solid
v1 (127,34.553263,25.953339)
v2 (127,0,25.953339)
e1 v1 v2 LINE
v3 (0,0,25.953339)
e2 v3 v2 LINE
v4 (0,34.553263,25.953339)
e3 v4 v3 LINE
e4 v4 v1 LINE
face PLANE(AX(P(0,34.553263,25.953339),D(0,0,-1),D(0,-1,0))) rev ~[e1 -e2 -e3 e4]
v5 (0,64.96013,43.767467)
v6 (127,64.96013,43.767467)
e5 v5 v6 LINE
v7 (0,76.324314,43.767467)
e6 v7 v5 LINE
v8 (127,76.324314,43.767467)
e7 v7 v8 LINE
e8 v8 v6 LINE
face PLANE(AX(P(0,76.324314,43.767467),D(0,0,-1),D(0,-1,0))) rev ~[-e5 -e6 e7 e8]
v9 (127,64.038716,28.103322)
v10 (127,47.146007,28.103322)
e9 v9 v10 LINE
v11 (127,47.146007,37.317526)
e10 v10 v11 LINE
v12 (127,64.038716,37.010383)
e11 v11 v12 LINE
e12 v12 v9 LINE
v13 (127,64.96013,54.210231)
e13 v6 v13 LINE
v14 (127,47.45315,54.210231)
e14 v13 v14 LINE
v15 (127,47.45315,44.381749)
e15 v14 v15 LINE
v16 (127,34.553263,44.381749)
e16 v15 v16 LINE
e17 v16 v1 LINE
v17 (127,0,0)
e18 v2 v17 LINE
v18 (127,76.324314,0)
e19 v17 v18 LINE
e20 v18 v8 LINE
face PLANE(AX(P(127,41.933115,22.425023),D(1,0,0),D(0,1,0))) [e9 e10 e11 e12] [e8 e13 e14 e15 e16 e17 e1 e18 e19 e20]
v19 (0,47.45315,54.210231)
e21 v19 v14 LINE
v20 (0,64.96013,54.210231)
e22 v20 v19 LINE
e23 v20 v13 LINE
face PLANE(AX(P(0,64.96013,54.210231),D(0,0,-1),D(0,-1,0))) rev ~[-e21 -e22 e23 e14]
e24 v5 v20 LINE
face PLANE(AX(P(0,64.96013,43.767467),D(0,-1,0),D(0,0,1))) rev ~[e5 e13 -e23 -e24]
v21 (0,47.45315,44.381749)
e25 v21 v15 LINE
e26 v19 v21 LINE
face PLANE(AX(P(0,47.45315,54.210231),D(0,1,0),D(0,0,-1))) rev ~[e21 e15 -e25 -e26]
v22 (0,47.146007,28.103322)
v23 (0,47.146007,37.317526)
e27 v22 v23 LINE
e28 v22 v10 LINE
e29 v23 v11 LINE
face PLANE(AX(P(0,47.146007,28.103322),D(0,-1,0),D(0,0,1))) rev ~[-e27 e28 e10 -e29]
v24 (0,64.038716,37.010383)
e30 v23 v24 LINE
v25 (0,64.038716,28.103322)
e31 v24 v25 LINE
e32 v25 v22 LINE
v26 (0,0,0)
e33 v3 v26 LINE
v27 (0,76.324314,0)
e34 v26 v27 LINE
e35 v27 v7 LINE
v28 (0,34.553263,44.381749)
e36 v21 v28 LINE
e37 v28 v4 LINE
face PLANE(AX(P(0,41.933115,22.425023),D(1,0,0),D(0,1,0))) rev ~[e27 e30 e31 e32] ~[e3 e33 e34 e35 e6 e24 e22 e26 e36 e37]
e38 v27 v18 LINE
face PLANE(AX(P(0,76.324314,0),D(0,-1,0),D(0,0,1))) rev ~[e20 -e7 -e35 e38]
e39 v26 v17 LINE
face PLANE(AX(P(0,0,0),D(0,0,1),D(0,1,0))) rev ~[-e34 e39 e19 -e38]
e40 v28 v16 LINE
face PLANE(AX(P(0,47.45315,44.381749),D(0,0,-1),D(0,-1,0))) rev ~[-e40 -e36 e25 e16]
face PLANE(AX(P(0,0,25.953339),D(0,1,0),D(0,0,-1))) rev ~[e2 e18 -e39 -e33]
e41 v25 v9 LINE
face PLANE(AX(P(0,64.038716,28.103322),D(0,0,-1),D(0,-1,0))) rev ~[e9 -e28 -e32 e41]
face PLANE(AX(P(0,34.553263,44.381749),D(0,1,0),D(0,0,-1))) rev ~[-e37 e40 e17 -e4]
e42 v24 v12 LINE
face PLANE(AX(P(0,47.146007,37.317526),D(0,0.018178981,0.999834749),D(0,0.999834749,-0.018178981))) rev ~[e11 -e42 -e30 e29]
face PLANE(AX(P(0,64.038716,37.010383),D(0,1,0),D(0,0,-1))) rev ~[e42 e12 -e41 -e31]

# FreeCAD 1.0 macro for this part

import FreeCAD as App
import Part
import Sketcher

V = App.Vector
Q = App.Units.Quantity


def add_polygon(sketch, points):
    """Adds a closed chain of lines whose ends are joined by coincident constraints."""
    first, n = sketch.GeometryCount, len(points)
    for a, b in zip(points, points[1:] + points[:1]):
        sketch.addGeometry(Part.LineSegment(App.Vector(*a, 0), App.Vector(*b, 0)), False)
    for i in range(n):
        sketch.addConstraint(Sketcher.Constraint("Coincident", first + i, 2, first + (i + 1) % n, 1))

doc = App.newDocument("Part")
body = doc.addObject("PartDesign::Body", "Body")

sketch1 = body.newObject("Sketcher::SketchObject", "Sketch")
sketch1.AttachmentSupport = (doc.getObject("YZ_Plane"), [""])
sketch1.MapMode = "FlatFace"
add_polygon(sketch1, [(0, 25.953339), (0, 0), (76.324314, 0), (76.324314, 43.767467), (64.96013, 43.767467), (64.96013, 54.210231), (47.45315, 54.210231), (47.45315, 44.381749), (34.553263, 44.381749), (34.553263, 25.953339)])
add_polygon(sketch1, [(64.038716, 28.103322), (47.146007, 28.103322), (47.146007, 37.317526), (64.038716, 37.010383)])
sketch1.addConstraint([
    Sketcher.Constraint("Vertical", 0),
    Sketcher.Constraint("Horizontal", 1),
    Sketcher.Constraint("Vertical", 2),
    Sketcher.Constraint("Horizontal", 3),
    Sketcher.Constraint("Vertical", 4),
    Sketcher.Constraint("Horizontal", 5),
    Sketcher.Constraint("Vertical", 6),
    Sketcher.Constraint("Horizontal", 7),
    Sketcher.Constraint("Vertical", 8),
    Sketcher.Constraint("Horizontal", 9),
    Sketcher.Constraint("Horizontal", 10),
    Sketcher.Constraint("Vertical", 11),
    Sketcher.Constraint("Vertical", 13),
    Sketcher.Constraint("Coincident", 0, 2, -1, 1),
    Sketcher.Constraint("Distance", 12, 16.895501),
    Sketcher.Constraint("DistanceX", 5, 2, 5, 1, 17.50698),
    Sketcher.Constraint("DistanceX", 10, 2, 10, 1, 16.892709),
    Sketcher.Constraint("DistanceY", 0, 2, 0, 1, 25.953339),
    Sketcher.Constraint("DistanceY", 8, 2, 8, 1, 18.42841),
    Sketcher.Constraint("DistanceY", 13, 2, 13, 1, 8.907061),
    Sketcher.Constraint("DistanceX", 12, 2, 2, 2, 12.285598),
    Sketcher.Constraint("DistanceX", 1, 1, 1, 2, 76.324314),
    Sketcher.Constraint("DistanceX", 3, 2, 3, 1, 11.364184),
    Sketcher.Constraint("DistanceX", 7, 2, 7, 1, 12.899887),
    Sketcher.Constraint("DistanceY", 2, 1, 2, 2, 43.767467),
    Sketcher.Constraint("DistanceY", 4, 1, 4, 2, 10.442764),
    Sketcher.Constraint("DistanceY", -1, 1, 10, 2, 28.103322),
])
pad1 = body.newObject("PartDesign::Pad", "Pad")
pad1.Profile = sketch1
pad1.Length = Q("5 in")

doc.recompute()
